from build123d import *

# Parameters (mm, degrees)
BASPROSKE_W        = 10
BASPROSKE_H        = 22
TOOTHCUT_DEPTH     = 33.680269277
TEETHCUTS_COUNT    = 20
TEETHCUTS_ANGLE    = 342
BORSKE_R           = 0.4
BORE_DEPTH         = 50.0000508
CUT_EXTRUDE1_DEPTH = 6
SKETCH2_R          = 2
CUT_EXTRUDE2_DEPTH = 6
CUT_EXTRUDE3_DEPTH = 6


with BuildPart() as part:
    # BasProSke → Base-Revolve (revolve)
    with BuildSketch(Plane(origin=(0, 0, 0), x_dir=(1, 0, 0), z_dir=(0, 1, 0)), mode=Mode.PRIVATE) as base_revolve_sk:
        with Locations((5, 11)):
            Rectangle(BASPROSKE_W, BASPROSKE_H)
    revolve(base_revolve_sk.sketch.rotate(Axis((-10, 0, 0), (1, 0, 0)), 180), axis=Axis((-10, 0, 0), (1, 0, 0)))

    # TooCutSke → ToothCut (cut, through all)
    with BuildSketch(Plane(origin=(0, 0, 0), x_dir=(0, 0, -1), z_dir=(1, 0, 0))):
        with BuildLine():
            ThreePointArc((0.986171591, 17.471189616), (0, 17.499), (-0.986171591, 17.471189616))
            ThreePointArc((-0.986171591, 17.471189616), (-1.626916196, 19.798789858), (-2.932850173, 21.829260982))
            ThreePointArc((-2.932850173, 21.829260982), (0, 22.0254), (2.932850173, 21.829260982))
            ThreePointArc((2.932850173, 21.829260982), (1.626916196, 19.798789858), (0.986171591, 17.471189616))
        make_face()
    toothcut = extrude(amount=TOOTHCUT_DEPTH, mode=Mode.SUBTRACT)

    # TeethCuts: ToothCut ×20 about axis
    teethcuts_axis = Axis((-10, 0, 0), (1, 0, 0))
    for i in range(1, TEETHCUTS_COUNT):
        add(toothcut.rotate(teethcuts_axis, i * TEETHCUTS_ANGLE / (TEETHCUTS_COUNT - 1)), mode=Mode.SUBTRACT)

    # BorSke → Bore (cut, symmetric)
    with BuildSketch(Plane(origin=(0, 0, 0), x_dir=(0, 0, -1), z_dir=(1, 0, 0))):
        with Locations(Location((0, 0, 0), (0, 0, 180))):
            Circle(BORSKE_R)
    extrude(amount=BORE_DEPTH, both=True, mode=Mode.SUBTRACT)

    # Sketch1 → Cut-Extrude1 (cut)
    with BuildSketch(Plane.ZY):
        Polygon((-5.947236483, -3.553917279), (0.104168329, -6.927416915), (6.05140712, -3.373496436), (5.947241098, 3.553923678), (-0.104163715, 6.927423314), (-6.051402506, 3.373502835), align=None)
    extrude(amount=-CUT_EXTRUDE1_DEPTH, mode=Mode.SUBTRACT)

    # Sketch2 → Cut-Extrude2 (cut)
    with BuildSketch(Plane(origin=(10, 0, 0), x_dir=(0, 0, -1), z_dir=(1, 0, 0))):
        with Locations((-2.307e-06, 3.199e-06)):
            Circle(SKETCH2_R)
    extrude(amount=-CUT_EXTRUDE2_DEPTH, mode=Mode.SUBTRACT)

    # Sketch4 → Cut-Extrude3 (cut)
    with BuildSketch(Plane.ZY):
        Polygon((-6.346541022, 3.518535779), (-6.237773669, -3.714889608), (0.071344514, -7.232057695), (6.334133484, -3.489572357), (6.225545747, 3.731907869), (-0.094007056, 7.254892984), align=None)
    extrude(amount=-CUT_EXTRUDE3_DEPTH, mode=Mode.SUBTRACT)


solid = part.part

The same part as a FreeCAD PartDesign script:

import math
import FreeCAD as App
import Part
import Sketcher

doc = App.newDocument("Part")
body = doc.addObject("PartDesign::Body", "Body")

# Sketch on XZ plane
sketch1 = body.newObject("Sketcher::SketchObject", "Sketch")
sketch1.AttachmentSupport = (doc.getObject("XZ_Plane"), [""])
sketch1.MapMode = "FlatFace"
sketch1.addGeometry(Part.LineSegment(App.Vector(0, -22, 0), App.Vector(0, 0, 0)), False)
sketch1.addGeometry(Part.LineSegment(App.Vector(0, 0, 0), App.Vector(10, 0, 0)), False)
sketch1.addGeometry(Part.LineSegment(App.Vector(10, 0, 0), App.Vector(10, -22, 0)), False)
sketch1.addGeometry(Part.LineSegment(App.Vector(10, -22, 0), App.Vector(0, -22, 0)), False)
sketch1.addConstraint(Sketcher.Constraint("Coincident", 0, 2, 1, 1))
sketch1.addConstraint(Sketcher.Constraint("Coincident", 1, 2, 2, 1))
sketch1.addConstraint(Sketcher.Constraint("Coincident", 2, 2, 3, 1))
sketch1.addConstraint(Sketcher.Constraint("Coincident", 3, 2, 0, 1))
sketch1.addConstraint(Sketcher.Constraint("Vertical", 0))
sketch1.addConstraint(Sketcher.Constraint("Horizontal", 1))
sketch1.addConstraint(Sketcher.Constraint("Vertical", 2))
sketch1.addConstraint(Sketcher.Constraint("Horizontal", 3))
sketch1.addConstraint(Sketcher.Constraint("Coincident", 0, 2, -1, 1))
sketch1.addConstraint(Sketcher.Constraint("DistanceX", 1, 1, 1, 2, 10.0))
sketch1.addConstraint(Sketcher.Constraint("DistanceY", 0, 1, 0, 2, 22.0))
revolution = body.newObject("PartDesign::Revolution", "Revolution")
revolution.Profile = sketch1
revolution.ReferenceAxis = (sketch1, ["H_Axis"])
revolution.Angle = 360

# Sketch on YZ plane
sketch2 = body.newObject("Sketcher::SketchObject", "Sketch001")
sketch2.AttachmentSupport = (doc.getObject("YZ_Plane"), [""])
sketch2.MapMode = "FlatFace"
sketch2.addGeometry(Part.ArcOfCircle(Part.Circle(App.Vector(0, 0, 0), App.Vector(0, 0, 1), 17.499), math.radians(-3.230666), math.radians(3.230666)), False)
sketch2.addGeometry(Part.ArcOfCircle(Part.Circle(App.Vector(16.536031, -8.931326, 0), App.Vector(0, 0, 1), 8), math.radians(48.573876), math.radians(83.287069)), False)
sketch2.addGeometry(Part.ArcOfCircle(Part.Circle(App.Vector(0, 0, 0), App.Vector(0, 0, 1), 22.0254), math.radians(-7.652098), math.radians(7.652098)), False)
sketch2.addGeometry(Part.ArcOfCircle(Part.Circle(App.Vector(16.536031, 8.931326, 0), App.Vector(0, 0, 1), 8), math.radians(-83.287069), math.radians(-48.573876)), False)
sketch2.addConstraint(Sketcher.Constraint("Coincident", 0, 1, 1, 2))
sketch2.addConstraint(Sketcher.Constraint("Coincident", 1, 1, 2, 1))
sketch2.addConstraint(Sketcher.Constraint("Coincident", 2, 2, 3, 2))
sketch2.addConstraint(Sketcher.Constraint("Coincident", 3, 1, 0, 2))
sketch2.addConstraint(Sketcher.Constraint("Coincident", 0, 3, -1, 1))
sketch2.addConstraint(Sketcher.Constraint("Coincident", 2, 3, -1, 1))
sketch2.addConstraint(Sketcher.Constraint("Equal", 1, 3))
sketch2.addConstraint(Sketcher.Constraint("Symmetric", 1, 3, 3, 3, -1))
sketch2.addConstraint(Sketcher.Constraint("Radius", 1, 8.0))
sketch2.addConstraint(Sketcher.Constraint("Radius", 0, 17.499))
sketch2.addConstraint(Sketcher.Constraint("Radius", 2, 22.0254))
sketch2.addConstraint(Sketcher.Constraint("DistanceY", 1, 1, 2, 2, 5.8657))
sketch2.addConstraint(Sketcher.Constraint("DistanceX", -1, 1, 1, 3, 16.536031))
pocket1 = body.newObject("PartDesign::Pocket", "Pocket")
pocket1.Profile = sketch2
pocket1.Type = "ThroughAll"
pocket1.Reversed = True
doc.recompute()

polarpattern = body.newObject("PartDesign::PolarPattern", "PolarPattern")
polarpattern.Originals = [pocket1]
polarpattern.Axis = (doc.getObject("X_Axis"), [""])
polarpattern.Angle = 360
polarpattern.Occurrences = 20
body.Tip = polarpattern

# Sketch on YZ plane
sketch3 = body.newObject("Sketcher::SketchObject", "Sketch002")
sketch3.AttachmentSupport = (doc.getObject("YZ_Plane"), [""])
sketch3.MapMode = "FlatFace"
sketch3.addGeometry(Part.Circle(App.Vector(0, 0, 0), App.Vector(0, 0, 1), 0.4), False)
sketch3.addConstraint(Sketcher.Constraint("Coincident", 0, 3, -1, 1))
sketch3.addConstraint(Sketcher.Constraint("Diameter", 0, 0.8))
pocket2 = body.newObject("PartDesign::Pocket", "Pocket001")
pocket2.Profile = sketch3
pocket2.Length = 100.000102
pocket2.Midplane = True

# Sketch on YZ plane
sketch4 = body.newObject("Sketcher::SketchObject", "Sketch003")
sketch4.AttachmentSupport = (doc.getObject("YZ_Plane"), [""])
sketch4.MapMode = "FlatFace"
sketch4.addGeometry(Part.LineSegment(App.Vector(-3.553917, -5.947236, 0), App.Vector(-6.927417, 0.104168, 0)), False)
sketch4.addGeometry(Part.LineSegment(App.Vector(-6.927417, 0.104168, 0), App.Vector(-3.373496, 6.051407, 0)), False)
sketch4.addGeometry(Part.LineSegment(App.Vector(-3.373496, 6.051407, 0), App.Vector(3.553924, 5.947241, 0)), False)
sketch4.addGeometry(Part.LineSegment(App.Vector(3.553924, 5.947241, 0), App.Vector(6.927423, -0.104164, 0)), False)
sketch4.addGeometry(Part.LineSegment(App.Vector(6.927423, -0.104164, 0), App.Vector(3.373503, -6.051403, 0)), False)
sketch4.addGeometry(Part.LineSegment(App.Vector(3.373503, -6.051403, 0), App.Vector(-3.553917, -5.947236, 0)), False)
sketch4.addConstraint(Sketcher.Constraint("Coincident", 0, 2, 1, 1))
sketch4.addConstraint(Sketcher.Constraint("Coincident", 1, 2, 2, 1))
sketch4.addConstraint(Sketcher.Constraint("Coincident", 2, 2, 3, 1))
sketch4.addConstraint(Sketcher.Constraint("Coincident", 3, 2, 4, 1))
sketch4.addConstraint(Sketcher.Constraint("Coincident", 4, 2, 5, 1))
sketch4.addConstraint(Sketcher.Constraint("Coincident", 5, 2, 0, 1))
sketch4.addConstraint(Sketcher.Constraint("Symmetric", 0, 2, 3, 2, -1, 1))
sketch4.addConstraint(Sketcher.Constraint("Symmetric", 1, 2, 4, 2, -1, 1))
sketch4.addConstraint(Sketcher.Constraint("Symmetric", 2, 2, 5, 2, -1, 1))
sketch4.addConstraint(Sketcher.Constraint("Equal", 0, 1))
sketch4.addConstraint(Sketcher.Constraint("Equal", 1, 2))
sketch4.addConstraint(Sketcher.Constraint("DistanceX", 1, 2, 4, 2, 6.746999))
sketch4.addConstraint(Sketcher.Constraint("DistanceX", 2, 2, 3, 2, 3.3735))
sketch4.addConstraint(Sketcher.Constraint("DistanceY", -1, 1, 0, 2, 0.104168))
sketch4.addConstraint(Sketcher.Constraint("DistanceY", -1, 1, 2, 2, 5.947241))
pocket3 = body.newObject("PartDesign::Pocket", "Pocket002")
pocket3.Profile = sketch4
pocket3.Length = 6
pocket3.Reversed = True

# Sketch on YZ plane
sketch5 = body.newObject("Sketcher::SketchObject", "Sketch004")
sketch5.AttachmentSupport = (doc.getObject("YZ_Plane"), [""])
sketch5.MapMode = "FlatFace"
sketch5.AttachmentOffset = App.Placement(App.Vector(0, 0, 10), App.Rotation())
sketch5.addGeometry(Part.Circle(App.Vector(0, 0, 0), App.Vector(0, 0, 1), 2), False)
sketch5.addConstraint(Sketcher.Constraint("Coincident", 0, 3, -1, 1))
sketch5.addConstraint(Sketcher.Constraint("Diameter", 0, 4.0))
pocket4 = body.newObject("PartDesign::Pocket", "Pocket003")
pocket4.Profile = sketch5
pocket4.Length = 6

# Sketch on YZ plane
sketch6 = body.newObject("Sketcher::SketchObject", "Sketch005")
sketch6.AttachmentSupport = (doc.getObject("YZ_Plane"), [""])
sketch6.MapMode = "FlatFace"
sketch6.addGeometry(Part.LineSegment(App.Vector(3.518536, -6.346541, 0), App.Vector(-3.71489, -6.237774, 0)), False)
sketch6.addGeometry(Part.LineSegment(App.Vector(-3.71489, -6.237774, 0), App.Vector(-7.232058, 0.071345, 0)), False)
sketch6.addGeometry(Part.LineSegment(App.Vector(-7.232058, 0.071345, 0), App.Vector(-3.489572, 6.334133, 0)), False)
sketch6.addGeometry(Part.LineSegment(App.Vector(-3.489572, 6.334133, 0), App.Vector(3.731908, 6.225546, 0)), False)
sketch6.addGeometry(Part.LineSegment(App.Vector(3.731908, 6.225546, 0), App.Vector(7.254893, -0.094007, 0)), False)
sketch6.addGeometry(Part.LineSegment(App.Vector(7.254893, -0.094007, 0), App.Vector(3.518536, -6.346541, 0)), False)
sketch6.addConstraint(Sketcher.Constraint("Coincident", 0, 2, 1, 1))
sketch6.addConstraint(Sketcher.Constraint("Coincident", 1, 2, 2, 1))
sketch6.addConstraint(Sketcher.Constraint("Coincident", 2, 2, 3, 1))
sketch6.addConstraint(Sketcher.Constraint("Coincident", 3, 2, 4, 1))
sketch6.addConstraint(Sketcher.Constraint("Coincident", 4, 2, 5, 1))
sketch6.addConstraint(Sketcher.Constraint("Coincident", 5, 2, 0, 1))
sketch6.addConstraint(Sketcher.Constraint("Parallel", 0, 3))
sketch6.addConstraint(Sketcher.Constraint("Parallel", 1, 4))
sketch6.addConstraint(Sketcher.Constraint("Parallel", 2, 5))
sketch6.addConstraint(Sketcher.Constraint("Distance", 2, 7.295802))
sketch6.addConstraint(Sketcher.Constraint("DistanceY", 1, 2, 3, 2, 6.154201))
sketch6.addConstraint(Sketcher.Constraint("DistanceX", 0, 2, -1, 1, 3.71489))
sketch6.addConstraint(Sketcher.Constraint("DistanceY", 5, 2, -1, 1, 6.346541))
sketch6.addConstraint(Sketcher.Constraint("DistanceX", 1, 2, 0, 2, 3.517168))
sketch6.addConstraint(Sketcher.Constraint("DistanceY", 0, 2, 1, 2, 6.309118))
sketch6.addConstraint(Sketcher.Constraint("DistanceY", 1, 2, 2, 2, 6.262789))
sketch6.addConstraint(Sketcher.Constraint("DistanceX", 2, 2, 3, 2, 7.22148))
sketch6.addConstraint(Sketcher.Constraint("DistanceY", 4, 2, 2, 2, 6.428141))
pocket5 = body.newObject("PartDesign::Pocket", "Pocket004")
pocket5.Profile = sketch6
pocket5.Length = 6
pocket5.Reversed = True

doc.recompute()
